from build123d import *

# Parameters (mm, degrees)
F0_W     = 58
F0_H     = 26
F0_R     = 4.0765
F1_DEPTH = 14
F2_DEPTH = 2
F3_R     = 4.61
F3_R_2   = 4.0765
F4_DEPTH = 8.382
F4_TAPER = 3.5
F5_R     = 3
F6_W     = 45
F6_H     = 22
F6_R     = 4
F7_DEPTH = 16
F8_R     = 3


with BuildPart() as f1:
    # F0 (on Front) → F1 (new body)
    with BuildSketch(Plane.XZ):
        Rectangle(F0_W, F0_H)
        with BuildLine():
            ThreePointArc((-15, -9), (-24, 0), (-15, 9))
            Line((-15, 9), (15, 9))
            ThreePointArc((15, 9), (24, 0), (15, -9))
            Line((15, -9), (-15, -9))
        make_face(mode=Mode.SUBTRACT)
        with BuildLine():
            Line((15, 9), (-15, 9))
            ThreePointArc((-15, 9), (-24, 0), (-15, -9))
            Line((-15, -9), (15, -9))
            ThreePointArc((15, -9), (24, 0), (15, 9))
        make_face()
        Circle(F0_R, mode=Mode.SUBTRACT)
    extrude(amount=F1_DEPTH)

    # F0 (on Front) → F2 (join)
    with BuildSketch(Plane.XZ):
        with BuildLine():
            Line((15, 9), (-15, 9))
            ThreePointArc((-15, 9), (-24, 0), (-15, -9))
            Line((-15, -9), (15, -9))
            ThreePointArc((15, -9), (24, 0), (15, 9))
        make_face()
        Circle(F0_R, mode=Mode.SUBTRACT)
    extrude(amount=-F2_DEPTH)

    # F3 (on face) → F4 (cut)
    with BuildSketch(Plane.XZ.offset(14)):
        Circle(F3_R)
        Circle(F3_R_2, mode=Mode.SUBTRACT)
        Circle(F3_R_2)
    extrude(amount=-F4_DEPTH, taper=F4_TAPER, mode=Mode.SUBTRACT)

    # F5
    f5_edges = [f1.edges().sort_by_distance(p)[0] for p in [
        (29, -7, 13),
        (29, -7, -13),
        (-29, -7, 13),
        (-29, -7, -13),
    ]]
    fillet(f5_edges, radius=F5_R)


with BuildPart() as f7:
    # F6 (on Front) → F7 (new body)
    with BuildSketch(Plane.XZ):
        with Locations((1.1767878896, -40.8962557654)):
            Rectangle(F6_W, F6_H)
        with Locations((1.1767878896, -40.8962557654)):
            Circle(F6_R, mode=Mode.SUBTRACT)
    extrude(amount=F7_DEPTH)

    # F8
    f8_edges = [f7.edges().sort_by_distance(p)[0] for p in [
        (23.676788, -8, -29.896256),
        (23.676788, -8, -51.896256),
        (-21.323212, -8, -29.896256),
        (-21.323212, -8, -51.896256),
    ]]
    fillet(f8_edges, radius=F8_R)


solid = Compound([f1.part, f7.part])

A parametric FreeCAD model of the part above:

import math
import FreeCAD as App
import Part
import Sketcher
from FreeCAD import Vector


def edges_at(feature, points):
    """Names of the edges that pass closest to the given points."""
    edges = feature.Shape.Edges
    near = lambda p: min(range(len(edges)), key=lambda i: edges[i].distToShape(Part.Vertex(*p))[0])
    return sorted({f"Edge{near(p) + 1}" for p in points})


def add_polygon(sketch, points):
    """Adds a closed chain of lines whose ends are joined by coincident constraints."""
    first, n = sketch.GeometryCount, len(points)
    for a, b in zip(points, points[1:] + points[:1]):
        sketch.addGeometry(Part.LineSegment(App.Vector(*a, 0), App.Vector(*b, 0)), False)
    for i in range(n):
        sketch.addConstraint(Sketcher.Constraint("Coincident", first + i, 2, first + (i + 1) % n, 1))

doc = App.newDocument("Part")
body = doc.addObject("PartDesign::Body", "Body")

sketch1 = body.newObject("Sketcher::SketchObject", "Sketch")
sketch1.AttachmentSupport = (doc.getObject("XZ_Plane"), [""])
sketch1.MapMode = "FlatFace"
add_polygon(sketch1, [(-29, 13), (-29, -13), (29, -13), (29, 13)])
sketch1.addGeometry(Part.Circle(Vector(0, 0, 0), Vector(0, 0, 1), 4.1), False)
sketch1.addConstraint([
    Sketcher.Constraint("Vertical", 0),
    Sketcher.Constraint("Horizontal", 1),
    Sketcher.Constraint("Vertical", 2),
    Sketcher.Constraint("Horizontal", 3),
    Sketcher.Constraint("Coincident", 4, 3, -1, 1),
    Sketcher.Constraint("Symmetric", 0, 2, 2, 2, -1, 1),
    Sketcher.Constraint("DistanceX", 1, 1, 1, 2, 58.0),
    Sketcher.Constraint("DistanceY", 0, 2, 0, 1, 26.0),
    Sketcher.Constraint("Diameter", 4, 8.153),
])
pad1 = body.newObject("PartDesign::Pad", "Pad")
pad1.Profile = sketch1
pad1.Length = 14

sketch2 = body.newObject("Sketcher::SketchObject", "Sketch001")
sketch2.AttachmentSupport = (doc.getObject("XZ_Plane"), [""])
sketch2.MapMode = "FlatFace"
sketch2.addGeometry([
    Part.LineSegment(Vector(15, 9, 0), Vector(-15, 9, 0)),
    Part.ArcOfCircle(Part.Circle(Vector(-15, 0, 0), Vector(0, 0, 1), 9), math.radians(90), math.radians(270)),
    Part.LineSegment(Vector(-15, -9, 0), Vector(15, -9, 0)),
    Part.ArcOfCircle(Part.Circle(Vector(15, 0, 0), Vector(0, 0, 1), 9), math.radians(-90), math.radians(90)),
    Part.Circle(Vector(0, 0, 0), Vector(0, 0, 1), 4.1),
], False)
sketch2.addConstraint([
    Sketcher.Constraint("Tangent", 0, 2, 1, 1),
    Sketcher.Constraint("Tangent", 1, 2, 2, 1),
    Sketcher.Constraint("Tangent", 2, 2, 3, 1),
    Sketcher.Constraint("Tangent", 3, 2, 0, 1),
    Sketcher.Constraint("Horizontal", 0),
    Sketcher.Constraint("Horizontal", 2),
    Sketcher.Constraint("Coincident", 4, 3, -1, 1),
    Sketcher.Constraint("Symmetric", 1, 3, 3, 3, -1, 1),
    Sketcher.Constraint("Radius", 1, 9.0),
    Sketcher.Constraint("DistanceX", 0, 2, 0, 1, 30.0),
    Sketcher.Constraint("Diameter", 4, 8.153),
])
pad2 = body.newObject("PartDesign::Pad", "Pad001")
pad2.Profile = sketch2
pad2.Length = 2
pad2.Reversed = True

sketch3 = body.newObject("Sketcher::SketchObject", "Sketch002")
sketch3.AttachmentSupport = (doc.getObject("XZ_Plane"), [""])
sketch3.MapMode = "FlatFace"
sketch3.AttachmentOffset = App.Placement(Vector(0, 0, 14), App.Rotation())
sketch3.addGeometry(Part.Circle(Vector(0, 0, 0), Vector(0, 0, 1), 4.6), False)
sketch3.addConstraint([
    Sketcher.Constraint("Coincident", 0, 3, -1, 1),
    Sketcher.Constraint("Diameter", 0, 9.22),
])
pocket1 = body.newObject("PartDesign::Pocket", "Pocket")
pocket1.Profile = sketch3
pocket1.Length = 8.382
pocket1.TaperAngle = -3.5
doc.recompute()

fillet = body.newObject("PartDesign::Fillet", "Fillet")
fillet.Base = (pocket1, edges_at(pocket1, [
    (29, -7, 13),
    (29, -7, -13),
    (-29, -7, 13),
    (-29, -7, -13),
]))
fillet.Radius = 3
body2 = doc.addObject("PartDesign::Body", "Body001")

sketch4 = body2.newObject("Sketcher::SketchObject", "Sketch003")
sketch4.AttachmentSupport = (doc.getObject("XZ_Plane001"), [""])
sketch4.MapMode = "FlatFace"
add_polygon(sketch4, [(-21.3, -29.9), (-21.3, -51.9), (23.7, -51.9), (23.7, -29.9)])
sketch4.addGeometry(Part.Circle(Vector(1.2, -40.9, 0), Vector(0, 0, 1), 4), False)
sketch4.addConstraint([
    Sketcher.Constraint("Vertical", 0),
    Sketcher.Constraint("Horizontal", 1),
    Sketcher.Constraint("Vertical", 2),
    Sketcher.Constraint("Horizontal", 3),
    Sketcher.Constraint("Diameter", 4, 8.0),
    Sketcher.Constraint("DistanceX", 1, 1, 1, 2, 45.0),
    Sketcher.Constraint("DistanceY", 0, 2, 0, 1, 22.0),
    Sketcher.Constraint("DistanceY", 0, 2, 4, 3, 11.0),
    Sketcher.Constraint("DistanceX", 0, 2, 4, 3, 22.5),
    Sketcher.Constraint("DistanceX", -1, 1, 4, 3, 1.176788),
    Sketcher.Constraint("DistanceY", 4, 3, -1, 1, 40.896256),
])
pad3 = body2.newObject("PartDesign::Pad", "Pad002")
pad3.Profile = sketch4
pad3.Length = 16
doc.recompute()

fillet2 = body2.newObject("PartDesign::Fillet", "Fillet001")
fillet2.Base = (pad3, edges_at(pad3, [
    (23.677, -8, -29.896),
    (23.677, -8, -51.896),
    (-21.323, -8, -29.896),
    (-21.323, -8, -51.896),
]))
fillet2.Radius = 3

doc.recompute()
